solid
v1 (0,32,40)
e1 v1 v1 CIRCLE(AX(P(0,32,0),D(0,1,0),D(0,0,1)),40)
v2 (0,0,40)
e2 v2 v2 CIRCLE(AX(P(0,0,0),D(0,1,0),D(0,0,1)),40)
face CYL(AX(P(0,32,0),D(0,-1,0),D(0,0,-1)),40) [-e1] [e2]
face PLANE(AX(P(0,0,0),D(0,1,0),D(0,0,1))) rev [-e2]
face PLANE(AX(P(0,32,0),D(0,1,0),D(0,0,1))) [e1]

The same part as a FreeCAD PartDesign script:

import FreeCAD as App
import Part
import Sketcher

V = App.Vector

doc = App.newDocument("Part")
params = doc.addObject("Spreadsheet::Sheet", "Params")
for row, (alias, value) in enumerate([
    ("sketch1_diameter", "80 mm"),
    ("pad1_length", "32 mm"),
], start=1):
    params.set(f"A{row}", alias)
    params.set(f"B{row}", "=" + value)
    params.setAlias(f"B{row}", alias)

body = doc.addObject("PartDesign::Body", "Body")

sketch1 = doc.addObject("Sketcher::SketchObject", "Sketch")
body.addObject(sketch1)
sketch1.AttachmentSupport = (doc.XZ_Plane, [""])
sketch1.MapMode = "FlatFace"
sketch1.addGeometry(Part.Circle(V(0, 0, 0), V(0, 0, 1), 40), False)
sketch1.addConstraint(Sketcher.Constraint("Coincident", 0, 3, -1, 1))
sketch1.addConstraint(Sketcher.Constraint("Diameter", 0, 80.0))
sketch1.setExpression("Constraints[1]", "Params.sketch1_diameter")
pad1 = doc.addObject("PartDesign::Pad", "Pad")
body.addObject(pad1)
pad1.Profile = sketch1
pad1.setExpression("Length", "Params.pad1_length")
pad1.Reversed = True

doc.recompute()
